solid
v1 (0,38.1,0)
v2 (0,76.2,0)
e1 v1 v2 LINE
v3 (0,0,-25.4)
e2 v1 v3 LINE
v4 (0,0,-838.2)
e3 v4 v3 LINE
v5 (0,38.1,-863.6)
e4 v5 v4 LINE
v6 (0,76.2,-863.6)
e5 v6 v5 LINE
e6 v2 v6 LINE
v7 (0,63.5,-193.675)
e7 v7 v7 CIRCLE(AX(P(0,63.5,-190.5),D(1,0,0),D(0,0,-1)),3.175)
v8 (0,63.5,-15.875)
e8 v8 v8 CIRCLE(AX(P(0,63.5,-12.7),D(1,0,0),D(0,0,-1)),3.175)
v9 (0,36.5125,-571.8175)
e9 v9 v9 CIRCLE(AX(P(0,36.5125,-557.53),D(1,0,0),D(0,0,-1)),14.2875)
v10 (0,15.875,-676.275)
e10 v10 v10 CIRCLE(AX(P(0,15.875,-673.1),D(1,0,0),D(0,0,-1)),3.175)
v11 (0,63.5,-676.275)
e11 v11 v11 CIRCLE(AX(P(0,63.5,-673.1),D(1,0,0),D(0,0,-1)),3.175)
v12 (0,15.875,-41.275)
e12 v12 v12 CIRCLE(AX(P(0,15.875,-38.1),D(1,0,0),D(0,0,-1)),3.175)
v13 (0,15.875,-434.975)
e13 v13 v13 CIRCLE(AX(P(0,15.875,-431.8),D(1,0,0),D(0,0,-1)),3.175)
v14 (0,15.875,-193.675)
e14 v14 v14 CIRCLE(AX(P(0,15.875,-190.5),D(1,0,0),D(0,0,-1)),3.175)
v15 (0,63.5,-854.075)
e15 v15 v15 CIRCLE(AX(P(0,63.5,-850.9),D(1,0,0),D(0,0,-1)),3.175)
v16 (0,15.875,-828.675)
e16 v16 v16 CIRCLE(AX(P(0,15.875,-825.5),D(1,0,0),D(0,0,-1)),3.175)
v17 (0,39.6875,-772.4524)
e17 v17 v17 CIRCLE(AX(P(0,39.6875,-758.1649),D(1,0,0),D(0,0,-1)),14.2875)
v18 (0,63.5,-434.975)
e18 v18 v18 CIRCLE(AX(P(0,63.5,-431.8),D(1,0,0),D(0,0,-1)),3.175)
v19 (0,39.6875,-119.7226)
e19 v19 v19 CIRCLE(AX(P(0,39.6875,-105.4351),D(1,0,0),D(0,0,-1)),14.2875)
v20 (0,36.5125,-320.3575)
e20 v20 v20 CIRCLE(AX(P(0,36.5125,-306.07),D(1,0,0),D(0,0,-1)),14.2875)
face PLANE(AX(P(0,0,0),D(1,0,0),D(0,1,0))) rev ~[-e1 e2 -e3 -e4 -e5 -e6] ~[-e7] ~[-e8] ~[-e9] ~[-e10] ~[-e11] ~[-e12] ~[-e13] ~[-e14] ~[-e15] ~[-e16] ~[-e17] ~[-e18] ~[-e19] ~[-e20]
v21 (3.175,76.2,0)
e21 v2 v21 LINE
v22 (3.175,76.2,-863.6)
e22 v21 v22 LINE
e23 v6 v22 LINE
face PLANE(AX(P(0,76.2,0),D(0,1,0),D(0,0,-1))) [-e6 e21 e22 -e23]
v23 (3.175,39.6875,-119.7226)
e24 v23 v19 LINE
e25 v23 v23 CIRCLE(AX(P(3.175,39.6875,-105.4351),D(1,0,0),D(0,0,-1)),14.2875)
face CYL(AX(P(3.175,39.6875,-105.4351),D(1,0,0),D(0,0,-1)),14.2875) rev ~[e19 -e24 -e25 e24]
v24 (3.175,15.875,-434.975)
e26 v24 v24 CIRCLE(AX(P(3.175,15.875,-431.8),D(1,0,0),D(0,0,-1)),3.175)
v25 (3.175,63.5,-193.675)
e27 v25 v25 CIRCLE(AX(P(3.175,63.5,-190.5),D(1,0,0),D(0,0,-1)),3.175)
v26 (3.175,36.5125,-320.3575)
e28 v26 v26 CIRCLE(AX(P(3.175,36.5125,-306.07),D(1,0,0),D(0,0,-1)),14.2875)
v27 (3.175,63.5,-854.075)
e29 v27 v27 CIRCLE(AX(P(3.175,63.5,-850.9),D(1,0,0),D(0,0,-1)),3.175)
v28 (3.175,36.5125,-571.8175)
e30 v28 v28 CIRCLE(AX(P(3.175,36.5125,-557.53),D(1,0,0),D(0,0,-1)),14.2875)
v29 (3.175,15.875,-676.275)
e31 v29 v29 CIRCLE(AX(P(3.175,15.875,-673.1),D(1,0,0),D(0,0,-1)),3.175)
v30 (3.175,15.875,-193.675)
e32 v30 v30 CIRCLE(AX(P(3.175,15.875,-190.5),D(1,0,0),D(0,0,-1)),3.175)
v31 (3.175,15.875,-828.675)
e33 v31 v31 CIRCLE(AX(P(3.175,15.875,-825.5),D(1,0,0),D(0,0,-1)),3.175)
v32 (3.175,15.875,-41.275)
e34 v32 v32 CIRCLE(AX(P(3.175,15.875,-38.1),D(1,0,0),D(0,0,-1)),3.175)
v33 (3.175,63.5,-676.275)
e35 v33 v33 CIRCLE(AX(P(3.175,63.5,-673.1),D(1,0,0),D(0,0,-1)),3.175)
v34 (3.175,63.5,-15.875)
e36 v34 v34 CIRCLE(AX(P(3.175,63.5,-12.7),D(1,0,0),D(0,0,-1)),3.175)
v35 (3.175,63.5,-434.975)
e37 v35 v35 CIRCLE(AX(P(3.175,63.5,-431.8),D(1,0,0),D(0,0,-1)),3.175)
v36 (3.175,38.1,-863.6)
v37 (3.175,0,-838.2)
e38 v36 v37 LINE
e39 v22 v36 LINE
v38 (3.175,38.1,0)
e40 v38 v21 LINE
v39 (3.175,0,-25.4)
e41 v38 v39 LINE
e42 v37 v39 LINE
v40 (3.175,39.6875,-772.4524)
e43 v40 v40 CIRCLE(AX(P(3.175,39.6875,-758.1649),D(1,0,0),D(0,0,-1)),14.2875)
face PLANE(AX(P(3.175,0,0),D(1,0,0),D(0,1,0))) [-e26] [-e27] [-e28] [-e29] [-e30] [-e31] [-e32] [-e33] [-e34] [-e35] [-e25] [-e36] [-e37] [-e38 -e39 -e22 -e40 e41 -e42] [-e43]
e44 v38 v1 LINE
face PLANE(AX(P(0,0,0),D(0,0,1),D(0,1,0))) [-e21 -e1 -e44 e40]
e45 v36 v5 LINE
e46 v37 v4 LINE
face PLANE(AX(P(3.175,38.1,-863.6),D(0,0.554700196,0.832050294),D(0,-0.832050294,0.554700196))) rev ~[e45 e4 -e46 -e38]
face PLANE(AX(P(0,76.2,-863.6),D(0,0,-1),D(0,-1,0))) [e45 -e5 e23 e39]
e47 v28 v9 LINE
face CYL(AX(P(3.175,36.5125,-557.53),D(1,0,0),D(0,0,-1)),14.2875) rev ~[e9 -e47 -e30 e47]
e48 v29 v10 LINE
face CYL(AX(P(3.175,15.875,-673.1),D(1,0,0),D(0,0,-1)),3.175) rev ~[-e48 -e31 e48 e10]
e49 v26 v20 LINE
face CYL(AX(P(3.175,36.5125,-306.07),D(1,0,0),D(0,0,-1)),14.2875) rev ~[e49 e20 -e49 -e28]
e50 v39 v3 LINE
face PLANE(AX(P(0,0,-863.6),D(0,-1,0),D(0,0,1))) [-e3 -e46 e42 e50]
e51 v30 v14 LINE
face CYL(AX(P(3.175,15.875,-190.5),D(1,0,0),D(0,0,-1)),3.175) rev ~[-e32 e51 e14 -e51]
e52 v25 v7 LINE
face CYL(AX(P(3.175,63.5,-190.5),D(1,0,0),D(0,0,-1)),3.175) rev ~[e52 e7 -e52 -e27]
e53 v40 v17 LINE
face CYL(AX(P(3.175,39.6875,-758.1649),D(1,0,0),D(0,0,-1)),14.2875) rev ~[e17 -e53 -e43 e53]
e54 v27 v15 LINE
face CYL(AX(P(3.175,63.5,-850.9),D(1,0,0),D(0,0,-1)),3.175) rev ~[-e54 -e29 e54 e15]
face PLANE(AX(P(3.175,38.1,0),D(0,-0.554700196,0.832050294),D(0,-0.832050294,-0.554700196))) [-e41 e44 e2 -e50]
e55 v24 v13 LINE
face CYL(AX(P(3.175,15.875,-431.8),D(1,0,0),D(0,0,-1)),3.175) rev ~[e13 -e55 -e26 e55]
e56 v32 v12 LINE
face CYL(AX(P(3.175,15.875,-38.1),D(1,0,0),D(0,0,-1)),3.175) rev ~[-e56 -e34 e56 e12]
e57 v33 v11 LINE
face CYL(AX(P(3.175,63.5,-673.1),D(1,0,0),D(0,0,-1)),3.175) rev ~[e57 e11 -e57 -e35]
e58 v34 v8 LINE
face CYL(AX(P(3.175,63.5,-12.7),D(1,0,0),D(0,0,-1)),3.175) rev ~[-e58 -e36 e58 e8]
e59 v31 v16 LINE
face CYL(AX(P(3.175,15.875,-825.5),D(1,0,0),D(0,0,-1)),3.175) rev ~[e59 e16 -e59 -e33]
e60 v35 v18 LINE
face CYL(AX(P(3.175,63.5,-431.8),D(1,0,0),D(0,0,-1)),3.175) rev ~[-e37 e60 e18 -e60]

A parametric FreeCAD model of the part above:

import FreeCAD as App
import Part
import Sketcher
from FreeCAD import Vector
Q = App.Units.Quantity


def add_polygon(sketch, points):
    """Adds a closed chain of lines whose ends are joined by coincident constraints."""
    first, n = sketch.GeometryCount, len(points)
    for a, b in zip(points, points[1:] + points[:1]):
        sketch.addGeometry(Part.LineSegment(App.Vector(*a, 0), App.Vector(*b, 0)), False)
    for i in range(n):
        sketch.addConstraint(Sketcher.Constraint("Coincident", first + i, 2, first + (i + 1) % n, 1))

doc = App.newDocument("Part")
body = doc.addObject("PartDesign::Body", "Body")

sketch1 = body.newObject("Sketcher::SketchObject", "Sketch")
sketch1.AttachmentSupport = (doc.getObject("YZ_Plane"), [""])
sketch1.MapMode = "FlatFace"
add_polygon(sketch1, [(76, 0), (0, 0), (0, -864), (76, -864)])
sketch1.addConstraint([
    Sketcher.Constraint("Horizontal", 0),
    Sketcher.Constraint("Vertical", 1),
    Sketcher.Constraint("Horizontal", 2),
    Sketcher.Constraint("Vertical", 3),
    Sketcher.Constraint("Coincident", 0, 2, -1, 1),
    Sketcher.Constraint("DistanceX", 0, 2, 0, 1, Q("3 in")),
    Sketcher.Constraint("DistanceY", 1, 2, 1, 1, Q("34 in")),
])
pad1 = body.newObject("PartDesign::Pad", "Pad")
pad1.Profile = sketch1
pad1.Length = Q("0.125 in")

sketch2 = body.newObject("Sketcher::SketchObject", "Sketch001")
sketch2.AttachmentSupport = (doc.getObject("YZ_Plane"), [""])
sketch2.MapMode = "FlatFace"
sketch2.AttachmentOffset = App.Placement(Vector(0, 0, 0.125 * 25.4), App.Rotation())
add_polygon(sketch2, [(0, -25.4), (38.1, 0), (0, 0)])
add_polygon(sketch2, [(38.1, -863.6), (0, -838.2), (0, -863.6)])
sketch2.addGeometry(Part.Circle(Vector(36.5, -306.1, 0), Vector(0, 0, 1), 14.3), False)
sketch2.addGeometry(Part.Circle(Vector(36.5, -557.5, 0), Vector(0, 0, 1), 14.3), False)
sketch2.addGeometry(Part.Circle(Vector(39.7, -105.4, 0), Vector(0, 0, 1), 14.3), False)
sketch2.addGeometry(Part.Circle(Vector(39.7, -758.2, 0), Vector(0, 0, 1), 14.3), False)
sketch2.addGeometry(Part.Circle(Vector(63.5, -12.7, 0), Vector(0, 0, 1), 3.2), False)
sketch2.addGeometry(Part.Circle(Vector(63.5, -850.9, 0), Vector(0, 0, 1), 3.2), False)
sketch2.addGeometry(Part.Circle(Vector(15.9, -825.5, 0), Vector(0, 0, 1), 3.2), False)
sketch2.addGeometry(Part.Circle(Vector(15.9, -38.1, 0), Vector(0, 0, 1), 3.2), False)
sketch2.addGeometry(Part.Circle(Vector(15.9, -190.5, 0), Vector(0, 0, 1), 3.2), False)
sketch2.addGeometry(Part.Circle(Vector(15.9, -431.8, 0), Vector(0, 0, 1), 3.2), False)
sketch2.addGeometry(Part.Circle(Vector(63.5, -431.8, 0), Vector(0, 0, 1), 3.2), False)
sketch2.addGeometry(Part.Circle(Vector(63.5, -673.1, 0), Vector(0, 0, 1), 3.2), False)
sketch2.addGeometry(Part.Circle(Vector(15.9, -673.1, 0), Vector(0, 0, 1), 3.2), False)
sketch2.addGeometry(Part.Circle(Vector(63.5, -190.5, 0), Vector(0, 0, 1), 3.2), False)
sketch2.addConstraint([
    Sketcher.Constraint("Horizontal", 1),
    Sketcher.Constraint("Vertical", 2),
    Sketcher.Constraint("Vertical", 4),
    Sketcher.Constraint("Horizontal", 5),
    Sketcher.Constraint("Coincident", 1, 2, -1, 1),
    Sketcher.Constraint("Equal", 6, 7),
    Sketcher.Constraint("Equal", 7, 8),
    Sketcher.Constraint("Equal", 8, 9),
    Sketcher.Constraint("Equal", 10, 11),
    Sketcher.Constraint("Equal", 11, 12),
    Sketcher.Constraint("Equal", 12, 13),
    Sketcher.Constraint("Equal", 13, 14),
    Sketcher.Constraint("Equal", 14, 15),
    Sketcher.Constraint("Equal", 15, 16),
    Sketcher.Constraint("Equal", 16, 17),
    Sketcher.Constraint("Equal", 17, 18),
    Sketcher.Constraint("Equal", 18, 19),
    Sketcher.Constraint("PointOnObject", 3, 2, -2),
    Sketcher.Constraint("Horizontal", 15, 3, 16, 3),
    Sketcher.Constraint("Horizontal", 17, 3, 18, 3),
    Sketcher.Constraint("Horizontal", 14, 3, 19, 3),
    Sketcher.Constraint("Vertical", 6, 3, 7, 3),
    Sketcher.Constraint("Vertical", 8, 3, 9, 3),
    Sketcher.Constraint("Vertical", 10, 3, 11, 3),
    Sketcher.Constraint("Vertical", 12, 3, 13, 3),
    Sketcher.Constraint("Vertical", 13, 3, 14, 3),
    Sketcher.Constraint("Vertical", 14, 3, 15, 3),
    Sketcher.Constraint("Vertical", 11, 3, 16, 3),
    Sketcher.Constraint("Vertical", 16, 3, 17, 3),
    Sketcher.Constraint("Vertical", 15, 3, 18, 3),
    Sketcher.Constraint("Vertical", 17, 3, 19, 3),
    Sketcher.Constraint("Vertical", 0, 2, 5, 2),
    Sketcher.Constraint("Equal", 2, 4),
    Sketcher.Constraint("Diameter", 10, Q("0.25 in")),
    Sketcher.Constraint("DistanceY", 2, 2, 2, 1, Q("1 in")),
    Sketcher.Constraint("Diameter", 6, Q("1.125 in")),
    Sketcher.Constraint("DistanceX", 1, 2, 1, 1, Q("1.5 in")),
    Sketcher.Constraint("DistanceY", 4, 2, -1, 1, Q("34 in")),
    Sketcher.Constraint("DistanceY", 11, 3, 12, 3, Q("1 in")),
    Sketcher.Constraint("DistanceY", 13, 3, 10, 3, Q("1 in")),
    Sketcher.Constraint("DistanceX", 0, 2, 10, 3, Q("1 in")),
    Sketcher.Constraint("DistanceY", 10, 3, -1, 1, Q("0.5 in")),
    Sketcher.Constraint("DistanceY", 15, 3, 14, 3, Q("9.5 in")),
    Sketcher.Constraint("DistanceY", 17, 3, 16, 3, Q("9.5 in")),
    Sketcher.Constraint("DistanceY", 3, 2, 12, 3, Q("0.5 in")),
    Sketcher.Constraint("DistanceX", -1, 1, 12, 3, Q("0.625 in")),
    Sketcher.Constraint("DistanceY", 15, 3, -1, 1, Q("17 in")),
    Sketcher.Constraint("DistanceY", 7, 3, 6, 3, Q("9.9 in")),
    Sketcher.Constraint("DistanceY", 6, 3, -1, 1, Q("12.05 in")),
    Sketcher.Constraint("DistanceX", -1, 1, 6, 3, Q("1.4375 in")),
    Sketcher.Constraint("DistanceX", -1, 1, 8, 3, Q("1.5625 in")),
    Sketcher.Constraint("DistanceY", 8, 3, -1, 1, Q("4.151 in")),
    Sketcher.Constraint("DistanceY", 9, 3, -1, 1, Q("29.849 in")),
])
pocket1 = body.newObject("PartDesign::Pocket", "Pocket")
pocket1.Profile = sketch2
pocket1.Length = Q("1 in")

doc.recompute()
